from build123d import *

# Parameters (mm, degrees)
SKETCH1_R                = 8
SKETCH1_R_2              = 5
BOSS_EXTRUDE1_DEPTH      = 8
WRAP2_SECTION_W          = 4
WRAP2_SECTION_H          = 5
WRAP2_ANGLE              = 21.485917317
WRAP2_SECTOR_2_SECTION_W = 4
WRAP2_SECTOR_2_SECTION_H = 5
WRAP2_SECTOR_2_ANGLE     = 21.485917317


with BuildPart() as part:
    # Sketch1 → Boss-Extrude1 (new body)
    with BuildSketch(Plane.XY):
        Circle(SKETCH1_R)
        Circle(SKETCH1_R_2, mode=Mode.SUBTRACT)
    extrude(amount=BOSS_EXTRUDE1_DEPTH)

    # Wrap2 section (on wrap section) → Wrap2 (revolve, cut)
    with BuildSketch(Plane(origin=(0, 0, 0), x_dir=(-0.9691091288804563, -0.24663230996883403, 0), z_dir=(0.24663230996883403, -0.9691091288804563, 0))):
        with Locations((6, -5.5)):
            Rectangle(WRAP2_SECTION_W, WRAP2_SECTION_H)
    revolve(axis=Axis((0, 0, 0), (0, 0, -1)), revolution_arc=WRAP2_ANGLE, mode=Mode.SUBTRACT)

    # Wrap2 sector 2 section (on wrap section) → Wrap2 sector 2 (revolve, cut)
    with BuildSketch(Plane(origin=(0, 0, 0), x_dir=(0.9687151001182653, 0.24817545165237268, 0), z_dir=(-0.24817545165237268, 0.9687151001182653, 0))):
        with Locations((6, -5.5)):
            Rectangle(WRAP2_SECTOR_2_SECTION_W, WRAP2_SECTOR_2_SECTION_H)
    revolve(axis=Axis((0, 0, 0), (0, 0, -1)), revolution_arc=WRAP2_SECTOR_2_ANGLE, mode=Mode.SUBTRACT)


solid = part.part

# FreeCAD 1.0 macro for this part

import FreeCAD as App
import Part
import Sketcher

V = App.Vector


def add_polygon(sketch, points):
    """Adds a closed chain of lines whose ends are joined by coincident constraints."""
    first, n = sketch.GeometryCount, len(points)
    for a, b in zip(points, points[1:] + points[:1]):
        sketch.addGeometry(Part.LineSegment(App.Vector(*a, 0), App.Vector(*b, 0)), False)
    for i in range(n):
        sketch.addConstraint(Sketcher.Constraint("Coincident", first + i, 2, first + (i + 1) % n, 1))

doc = App.newDocument("Part")
body = doc.addObject("PartDesign::Body", "Body")

sketch1 = doc.addObject("Sketcher::SketchObject", "Sketch")
body.addObject(sketch1)
sketch1.AttachmentSupport = (doc.XY_Plane, [""])
sketch1.MapMode = "FlatFace"
sketch1.addGeometry(Part.Circle(V(0, 0, 0), V(0, 0, 1), 8), False)
sketch1.addGeometry(Part.Circle(V(0, 0, 0), V(0, 0, 1), 5), False)
sketch1.addConstraint(Sketcher.Constraint("Coincident", 0, 3, -1, 1))
sketch1.addConstraint(Sketcher.Constraint("Coincident", 1, 3, -1, 1))
sketch1.addConstraint(Sketcher.Constraint("Diameter", 0, 16.0))
sketch1.addConstraint(Sketcher.Constraint("Diameter", 1, 10.0))
pad1 = doc.addObject("PartDesign::Pad", "Pad")
body.addObject(pad1)
pad1.Profile = sketch1
pad1.Length = 8

sketch2 = doc.addObject("Sketcher::SketchObject", "Sketch001")
body.addObject(sketch2)
sketch2.Placement = App.Placement(V(0, 0, 0), App.Rotation(V(-0.969109129, -0.24663231, 0), V(0, 0, -1), V(0.24663231, -0.969109129, 0), "ZXY"))
add_polygon(sketch2, [(4, -3), (4, -8), (8, -8), (8, -3)])
sketch2.addConstraint(Sketcher.Constraint("Vertical", 0))
sketch2.addConstraint(Sketcher.Constraint("Horizontal", 1))
sketch2.addConstraint(Sketcher.Constraint("Vertical", 2))
sketch2.addConstraint(Sketcher.Constraint("Horizontal", 3))
sketch2.addConstraint(Sketcher.Constraint("DistanceX", 1, 1, 1, 2, 4.0))
sketch2.addConstraint(Sketcher.Constraint("DistanceY", 0, 2, 0, 1, 5.0))
sketch2.addConstraint(Sketcher.Constraint("DistanceX", -1, 1, 0, 2, 4.0))
sketch2.addConstraint(Sketcher.Constraint("DistanceY", 0, 2, -1, 1, 8.0))
groove = doc.addObject("PartDesign::Groove", "Groove")
body.addObject(groove)
groove.Profile = sketch2
groove.ReferenceAxis = (sketch2, ["V_Axis"])
groove.Angle = 21.485917

sketch3 = doc.addObject("Sketcher::SketchObject", "Sketch002")
body.addObject(sketch3)
sketch3.Placement = App.Placement(V(0, 0, 0), App.Rotation(V(0.9687151, 0.248175452, 0), V(0, 0, -1), V(-0.248175452, 0.9687151, 0), "ZXY"))
add_polygon(sketch3, [(4, -3), (4, -8), (8, -8), (8, -3)])
sketch3.addConstraint(Sketcher.Constraint("Vertical", 0))
sketch3.addConstraint(Sketcher.Constraint("Horizontal", 1))
sketch3.addConstraint(Sketcher.Constraint("Vertical", 2))
sketch3.addConstraint(Sketcher.Constraint("Horizontal", 3))
sketch3.addConstraint(Sketcher.Constraint("DistanceX", 1, 1, 1, 2, 4.0))
sketch3.addConstraint(Sketcher.Constraint("DistanceY", 0, 2, 0, 1, 5.0))
sketch3.addConstraint(Sketcher.Constraint("DistanceX", -1, 1, 0, 2, 4.0))
sketch3.addConstraint(Sketcher.Constraint("DistanceY", 0, 2, -1, 1, 8.0))
groove2 = doc.addObject("PartDesign::Groove", "Groove001")
body.addObject(groove2)
groove2.Profile = sketch3
groove2.ReferenceAxis = (sketch3, ["V_Axis"])
groove2.Angle = 21.485917

doc.recompute()
